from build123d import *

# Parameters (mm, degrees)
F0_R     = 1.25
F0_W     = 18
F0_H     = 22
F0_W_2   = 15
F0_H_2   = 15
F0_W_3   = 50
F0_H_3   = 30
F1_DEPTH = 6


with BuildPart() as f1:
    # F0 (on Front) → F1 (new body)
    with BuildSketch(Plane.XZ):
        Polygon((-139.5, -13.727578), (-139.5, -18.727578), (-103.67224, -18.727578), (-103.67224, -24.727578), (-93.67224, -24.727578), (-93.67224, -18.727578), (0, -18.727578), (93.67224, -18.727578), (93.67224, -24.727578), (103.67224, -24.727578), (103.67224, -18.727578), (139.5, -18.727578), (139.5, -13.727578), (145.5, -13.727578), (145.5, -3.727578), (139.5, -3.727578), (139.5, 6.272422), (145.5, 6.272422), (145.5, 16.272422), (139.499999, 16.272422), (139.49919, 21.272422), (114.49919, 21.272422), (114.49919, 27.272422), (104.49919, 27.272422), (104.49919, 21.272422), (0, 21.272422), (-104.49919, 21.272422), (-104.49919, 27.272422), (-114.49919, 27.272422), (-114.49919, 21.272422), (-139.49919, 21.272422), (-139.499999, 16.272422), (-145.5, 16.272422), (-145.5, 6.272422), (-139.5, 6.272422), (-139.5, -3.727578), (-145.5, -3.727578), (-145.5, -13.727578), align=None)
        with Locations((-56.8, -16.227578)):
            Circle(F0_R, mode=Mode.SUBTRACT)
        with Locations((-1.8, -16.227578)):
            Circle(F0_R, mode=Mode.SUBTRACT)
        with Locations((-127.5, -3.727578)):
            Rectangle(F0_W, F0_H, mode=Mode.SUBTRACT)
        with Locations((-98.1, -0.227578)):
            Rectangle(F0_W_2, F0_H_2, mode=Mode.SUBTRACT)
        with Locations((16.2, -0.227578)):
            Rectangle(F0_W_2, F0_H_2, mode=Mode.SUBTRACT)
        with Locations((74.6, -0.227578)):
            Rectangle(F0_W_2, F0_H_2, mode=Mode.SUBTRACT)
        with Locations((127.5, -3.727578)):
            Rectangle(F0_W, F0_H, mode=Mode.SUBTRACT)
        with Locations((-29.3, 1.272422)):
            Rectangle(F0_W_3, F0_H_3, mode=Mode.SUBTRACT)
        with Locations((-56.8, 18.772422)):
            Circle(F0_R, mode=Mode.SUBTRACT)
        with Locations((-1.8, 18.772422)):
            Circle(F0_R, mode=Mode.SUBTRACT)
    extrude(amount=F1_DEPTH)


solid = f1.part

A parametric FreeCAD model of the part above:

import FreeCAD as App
import Part
import Sketcher

V = App.Vector
Q = App.Units.Quantity


def add_polygon(sketch, points):
    """Adds a closed chain of lines whose ends are joined by coincident constraints."""
    first, n = sketch.GeometryCount, len(points)
    for a, b in zip(points, points[1:] + points[:1]):
        sketch.addGeometry(Part.LineSegment(App.Vector(*a, 0), App.Vector(*b, 0)), False)
    for i in range(n):
        sketch.addConstraint(Sketcher.Constraint("Coincident", first + i, 2, first + (i + 1) % n, 1))

doc = App.newDocument("Part")
body = doc.addObject("PartDesign::Body", "Body")

# Sketch on XZ plane
sketch1 = body.newObject("Sketcher::SketchObject", "Sketch")
sketch1.AttachmentSupport = (doc.getObject("XZ_Plane"), [""])
sketch1.MapMode = "FlatFace"
add_polygon(sketch1, [(-139.5, -13.727578), (-139.5, -18.727578), (-103.67224, -18.727578), (-103.67224, -24.727578), (-93.67224, -24.727578), (-93.67224, -18.727578), (93.67224, -18.727578), (93.67224, -24.727578), (103.67224, -24.727578), (103.67224, -18.727578), (139.5, -18.727578), (139.5, -13.727578), (145.5, -13.727578), (145.5, -3.727578), (139.5, -3.727578), (139.5, 6.272422), (145.5, 6.272422), (145.5, 16.272422), (139.499999, 16.272422), (139.49919, 21.272422), (114.49919, 21.272422), (114.49919, 27.272422), (104.49919, 27.272422), (104.49919, 21.272422), (-104.49919, 21.272422), (-104.49919, 27.272422), (-114.49919, 27.272422), (-114.49919, 21.272422), (-139.49919, 21.272422), (-139.499999, 16.272422), (-145.5, 16.272422), (-145.5, 6.272422), (-139.5, 6.272422), (-139.5, -3.727578), (-145.5, -3.727578), (-145.5, -13.727578)])  # lines 0-35
sketch1.addGeometry(Part.Circle(V(-56.8, -16.227578, 0), V(0, 0, 1), 1.25), False)  # 36
sketch1.addGeometry(Part.Circle(V(-1.8, -16.227578, 0), V(0, 0, 1), 1.25), False)  # 37
add_polygon(sketch1, [(-118.5, -14.727578), (-136.5, -14.727578), (-136.5, 7.272422), (-118.5, 7.272422)])  # lines 38-41
add_polygon(sketch1, [(-90.6, -7.727578), (-105.6, -7.727578), (-105.6, 7.272422), (-90.6, 7.272422)])  # lines 42-45
add_polygon(sketch1, [(23.7, -7.727578), (8.7, -7.727578), (8.7, 7.272422), (23.7, 7.272422)])  # lines 46-49
add_polygon(sketch1, [(136.5, -14.727578), (118.5, -14.727578), (118.5, 7.272422), (136.5, 7.272422)])  # lines 50-53
add_polygon(sketch1, [(82.1, -7.727578), (67.1, -7.727578), (67.1, 7.272422), (82.1, 7.272422)])  # lines 54-57
add_polygon(sketch1, [(-4.3, -13.727578), (-54.3, -13.727578), (-54.3, 16.272422), (-4.3, 16.272422)])  # lines 58-61
sketch1.addGeometry(Part.Circle(V(-56.8, 18.772422, 0), V(0, 0, 1), 1.25), False)  # 62
sketch1.addGeometry(Part.Circle(V(-1.8, 18.772422, 0), V(0, 0, 1), 1.25), False)  # 63
sketch1.addConstraint([
    Sketcher.Constraint("Vertical", 0),
    Sketcher.Constraint("Horizontal", 1),
    Sketcher.Constraint("Vertical", 2),
    Sketcher.Constraint("Horizontal", 3),
    Sketcher.Constraint("Vertical", 4),
    Sketcher.Constraint("Horizontal", 5),
    Sketcher.Constraint("Vertical", 6),
    Sketcher.Constraint("Horizontal", 7),
    Sketcher.Constraint("Vertical", 8),
    Sketcher.Constraint("Horizontal", 9),
    Sketcher.Constraint("Vertical", 10),
    Sketcher.Constraint("Horizontal", 11),
    Sketcher.Constraint("Vertical", 12),
    Sketcher.Constraint("Horizontal", 13),
    Sketcher.Constraint("Vertical", 14),
    Sketcher.Constraint("Horizontal", 15),
    Sketcher.Constraint("Vertical", 16),
    Sketcher.Constraint("Horizontal", 17),
    Sketcher.Constraint("Horizontal", 19),
    Sketcher.Constraint("Vertical", 20),
    Sketcher.Constraint("Horizontal", 21),
    Sketcher.Constraint("Vertical", 22),
    Sketcher.Constraint("Horizontal", 23),
    Sketcher.Constraint("Vertical", 24),
    Sketcher.Constraint("Horizontal", 25),
    Sketcher.Constraint("Vertical", 26),
    Sketcher.Constraint("Horizontal", 27),
    Sketcher.Constraint("Horizontal", 29),
    Sketcher.Constraint("Vertical", 30),
    Sketcher.Constraint("Horizontal", 31),
    Sketcher.Constraint("Vertical", 32),
    Sketcher.Constraint("Horizontal", 33),
    Sketcher.Constraint("Vertical", 34),
    Sketcher.Constraint("Horizontal", 35),
    Sketcher.Constraint("Horizontal", 38),
    Sketcher.Constraint("Vertical", 39),
    Sketcher.Constraint("Horizontal", 40),
    Sketcher.Constraint("Vertical", 41),
    Sketcher.Constraint("Horizontal", 42),
    Sketcher.Constraint("Vertical", 43),
    Sketcher.Constraint("Horizontal", 44),
    Sketcher.Constraint("Vertical", 45),
    Sketcher.Constraint("Horizontal", 46),
    Sketcher.Constraint("Vertical", 47),
    Sketcher.Constraint("Horizontal", 48),
    Sketcher.Constraint("Vertical", 49),
    Sketcher.Constraint("Horizontal", 50),
    Sketcher.Constraint("Vertical", 51),
    Sketcher.Constraint("Horizontal", 52),
    Sketcher.Constraint("Vertical", 53),
    Sketcher.Constraint("Horizontal", 54),
    Sketcher.Constraint("Vertical", 55),
    Sketcher.Constraint("Horizontal", 56),
    Sketcher.Constraint("Vertical", 57),
    Sketcher.Constraint("Horizontal", 58),
    Sketcher.Constraint("Vertical", 59),
    Sketcher.Constraint("Horizontal", 60),
    Sketcher.Constraint("Vertical", 61),
    Sketcher.Constraint("Equal", 36, 37),
    Sketcher.Constraint("Equal", 37, 62),
    Sketcher.Constraint("Equal", 62, 63),
    Sketcher.Constraint("Symmetric", 3, 2, 6, 2, -2),
    Sketcher.Constraint("Symmetric", 1, 2, 8, 2, -2),
    Sketcher.Constraint("Symmetric", 21, 2, 24, 2, -2),
    Sketcher.Constraint("Symmetric", 19, 2, 26, 2, -2),
    Sketcher.Constraint("Symmetric", 17, 2, 28, 2, -2),
    Sketcher.Constraint("Symmetric", 15, 2, 30, 2, -2),
    Sketcher.Constraint("Symmetric", 13, 2, 32, 2, -2),
    Sketcher.Constraint("Symmetric", 11, 2, 34, 2, -2),
    Sketcher.Constraint("Symmetric", 41, 2, 50, 2, -2),
    Sketcher.Constraint("Symmetric", 39, 2, 52, 2, -2),
    Sketcher.Constraint("Horizontal", 36, 3, 37, 3),
    Sketcher.Constraint("Horizontal", 62, 3, 63, 3),
    Sketcher.Constraint("Horizontal", 1, 2, 4, 2),
    Sketcher.Constraint("Horizontal", 19, 2, 22, 2),
    Sketcher.Constraint("Horizontal", 40, 2, 43, 2),
    Sketcher.Constraint("Horizontal", 45, 2, 46, 2),
    Sketcher.Constraint("Horizontal", 44, 2, 47, 2),
    Sketcher.Constraint("Horizontal", 49, 2, 54, 2),
    Sketcher.Constraint("Horizontal", 52, 2, 55, 2),
    Sketcher.Constraint("Horizontal", 35, 2, 58, 2),
    Sketcher.Constraint("Horizontal", 29, 2, 59, 2),
    Sketcher.Constraint("Vertical", 36, 3, 62, 3),
    Sketcher.Constraint("Vertical", 37, 3, 63, 3),
    Sketcher.Constraint("Vertical", 10, 2, 13, 2),
    Sketcher.Constraint("Vertical", 12, 2, 15, 2),
    Sketcher.Constraint("Vertical", 14, 2, 17, 2),
    Sketcher.Constraint("Vertical", 0, 2, 28, 2),
    Sketcher.Constraint("Equal", 7, 21),
    Sketcher.Constraint("Equal", 19, 27),
    Sketcher.Constraint("Equal", 44, 46),
    Sketcher.Constraint("Equal", 48, 54),
    Sketcher.Constraint("Equal", 35, 2),
    Sketcher.Constraint("Equal", 25, 12),
    Sketcher.Constraint("Equal", 12, 14),
    Sketcher.Constraint("Equal", 14, 16),
    Sketcher.Constraint("Equal", 8, 20),
    Sketcher.Constraint("Equal", 56, 43),
    Sketcher.Constraint("Diameter", 36, Q("2.5 mm")),
    Sketcher.Constraint("DistanceX", 3, 1, 3, 2, Q("10 mm")),
    Sketcher.Constraint("DistanceX", 11, 1, 11, 2, Q("6 mm")),
    Sketcher.Constraint("DistanceX", 19, 2, 19, 1, Q("25 mm")),
    Sketcher.Constraint("DistanceX", 38, 2, 38, 1, Q("18 mm")),
    Sketcher.Constraint("DistanceX", 42, 2, 42, 1, Q("15 mm")),
    Sketcher.Constraint("DistanceX", 58, 2, 58, 1, Q("50 mm")),
    Sketcher.Constraint("DistanceY", 0, 2, 0, 1, Q("5 mm")),
    Sketcher.Constraint("DistanceY", 39, 1, 39, 2, Q("22 mm")),
    Sketcher.Constraint("Distance", 18, Q("5 mm")),
    Sketcher.Constraint("DistanceX", 36, 3, -1, 1, Q("56.8 mm")),
    Sketcher.Constraint("DistanceX", 37, 3, -1, 1, Q("1.8 mm")),
    Sketcher.Constraint("DistanceX", 0, 2, -1, 1, Q("139.5 mm")),
    Sketcher.Constraint("DistanceX", 38, 2, -1, 1, Q("136.5 mm")),
    Sketcher.Constraint("DistanceX", 42, 2, -1, 1, Q("105.6 mm")),
    Sketcher.Constraint("DistanceX", -1, 1, 46, 2, Q("8.7 mm")),
    Sketcher.Constraint("DistanceX", -1, 1, 54, 2, Q("67.1 mm")),
    Sketcher.Constraint("DistanceX", 58, 2, -1, 1, Q("54.3 mm")),
    Sketcher.Constraint("DistanceX", 1, 1, 1, 2, Q("35.82776 mm")),
    Sketcher.Constraint("DistanceX", 23, 2, 23, 1, Q("208.99838 mm")),
    Sketcher.Constraint("DistanceY", 36, 3, -1, 1, Q("16.227578 mm")),
    Sketcher.Constraint("DistanceY", -1, 1, 62, 3, Q("18.772422 mm")),
    Sketcher.Constraint("DistanceY", 0, 2, -1, 1, Q("18.727578 mm")),
    Sketcher.Constraint("DistanceY", -1, 1, 39, 2, Q("7.272422 mm")),
])
pad1 = body.newObject("PartDesign::Pad", "Pad")
pad1.Profile = sketch1
pad1.Length = 6

doc.recompute()
